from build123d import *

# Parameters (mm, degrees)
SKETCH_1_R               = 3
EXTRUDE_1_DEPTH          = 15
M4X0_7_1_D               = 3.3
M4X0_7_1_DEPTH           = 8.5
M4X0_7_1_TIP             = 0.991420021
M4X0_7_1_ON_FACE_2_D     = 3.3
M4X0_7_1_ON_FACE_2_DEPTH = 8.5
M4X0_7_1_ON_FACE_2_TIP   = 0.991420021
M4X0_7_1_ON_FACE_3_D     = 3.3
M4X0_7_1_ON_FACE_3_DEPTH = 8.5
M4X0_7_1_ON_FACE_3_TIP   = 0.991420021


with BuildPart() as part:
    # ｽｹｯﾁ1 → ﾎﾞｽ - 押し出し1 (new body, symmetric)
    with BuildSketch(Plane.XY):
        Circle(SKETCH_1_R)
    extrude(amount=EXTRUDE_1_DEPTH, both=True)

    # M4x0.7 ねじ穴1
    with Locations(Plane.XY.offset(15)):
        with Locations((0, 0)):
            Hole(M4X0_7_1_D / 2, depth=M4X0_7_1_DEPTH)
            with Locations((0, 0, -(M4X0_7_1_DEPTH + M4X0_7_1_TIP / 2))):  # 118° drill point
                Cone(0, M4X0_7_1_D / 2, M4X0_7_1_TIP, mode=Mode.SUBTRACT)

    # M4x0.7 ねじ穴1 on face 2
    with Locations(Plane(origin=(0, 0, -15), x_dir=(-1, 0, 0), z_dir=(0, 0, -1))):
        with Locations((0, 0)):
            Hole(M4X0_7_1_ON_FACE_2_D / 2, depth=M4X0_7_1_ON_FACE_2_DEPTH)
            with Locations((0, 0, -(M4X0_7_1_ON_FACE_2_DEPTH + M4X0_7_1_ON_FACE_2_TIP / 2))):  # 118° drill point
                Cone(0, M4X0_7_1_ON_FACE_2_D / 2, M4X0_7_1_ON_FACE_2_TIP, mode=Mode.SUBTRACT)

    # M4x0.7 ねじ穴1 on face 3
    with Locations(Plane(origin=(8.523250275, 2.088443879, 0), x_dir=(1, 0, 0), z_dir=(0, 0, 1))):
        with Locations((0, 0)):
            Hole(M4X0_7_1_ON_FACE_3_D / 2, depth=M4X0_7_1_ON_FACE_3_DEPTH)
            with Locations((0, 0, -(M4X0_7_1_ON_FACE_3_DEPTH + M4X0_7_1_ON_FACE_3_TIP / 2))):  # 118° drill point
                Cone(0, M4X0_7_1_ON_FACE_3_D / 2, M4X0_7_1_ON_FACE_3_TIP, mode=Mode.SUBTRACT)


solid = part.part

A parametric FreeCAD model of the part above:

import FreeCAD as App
import Part
import Sketcher

V = App.Vector
Q = App.Units.Quantity

doc = App.newDocument("Part")
params = doc.addObject("Spreadsheet::Sheet", "Params")
for row, (alias, value) in enumerate([
    ("sketch1_diameter", "6 mm"),
    ("pad1_length", "30 mm"),
    ("sketch2_diameter", "3.3 mm"),
    ("hole_diameter", "3.3 mm"),
    ("hole_depth", "8.5 mm"),
    ("sketch3_diameter", "3.3 mm"),
    ("hole2_diameter", "3.3 mm"),
    ("hole2_depth", "8.5 mm"),
    ("sketch4_diameter", "3.3 mm"),
    ("hole3_diameter", "3.3 mm"),
    ("hole3_depth", "8.5 mm"),
], start=1):
    params.set(f"A{row}", alias)
    params.set(f"B{row}", "=" + value)
    params.setAlias(f"B{row}", alias)

body = doc.addObject("PartDesign::Body", "Body")

# Sketch on XY plane
sketch1 = body.newObject("Sketcher::SketchObject", "Sketch")
sketch1.AttachmentSupport = (doc.getObject("XY_Plane"), [""])
sketch1.MapMode = "FlatFace"
sketch1.addGeometry(Part.Circle(V(0, 0, 0), V(0, 0, 1), 3), False)
sketch1.addConstraint([
    Sketcher.Constraint("Coincident", 0, 3, -1, 1),
    Sketcher.Constraint("Diameter", 0, Q("6 mm")),
])
sketch1.setExpression("Constraints[1]", "Params.sketch1_diameter")
pad1 = body.newObject("PartDesign::Pad", "Pad")
pad1.Profile = sketch1
pad1.setExpression("Length", "Params.pad1_length")
pad1.Midplane = True

# Sketch on XY plane
sketch2 = body.newObject("Sketcher::SketchObject", "Sketch001")
sketch2.AttachmentSupport = (doc.getObject("XY_Plane"), [""])
sketch2.MapMode = "FlatFace"
sketch2.AttachmentOffset = App.Placement(V(0, 0, 15), App.Rotation())
sketch2.addGeometry(Part.Circle(V(0, 0, 0), V(0, 0, 1), 1.6), False)
sketch2.addConstraint([
    Sketcher.Constraint("Coincident", 0, 3, -1, 1),
    Sketcher.Constraint("Diameter", 0, Q("3.3 mm")),
])
sketch2.setExpression("Constraints[1]", "Params.sketch2_diameter")
doc.recompute()
hole = body.newObject("PartDesign::Hole", "Hole")
hole.Profile = sketch2
hole.ThreadType = "None"
hole.setExpression("Diameter", "Params.hole_diameter")
hole.DepthType = "Dimension"
hole.setExpression("Depth", "Params.hole_depth")
hole.DrillPoint = "Angled"
hole.DrillPointAngle = 118

# Sketch on XY plane
sketch3 = body.newObject("Sketcher::SketchObject", "Sketch002")
sketch3.AttachmentSupport = (doc.getObject("XY_Plane"), [""])
sketch3.MapMode = "FlatFace"
sketch3.AttachmentOffset = App.Placement(V(0, 0, -15), App.Rotation())
sketch3.addGeometry(Part.Circle(V(0, 0, 0), V(0, 0, 1), 1.6), False)
sketch3.addConstraint([
    Sketcher.Constraint("Coincident", 0, 3, -1, 1),
    Sketcher.Constraint("Diameter", 0, Q("3.3 mm")),
])
sketch3.setExpression("Constraints[1]", "Params.sketch3_diameter")
doc.recompute()
hole2 = body.newObject("PartDesign::Hole", "Hole001")
hole2.Profile = sketch3
hole2.ThreadType = "None"
hole2.setExpression("Diameter", "Params.hole2_diameter")
hole2.DepthType = "Dimension"
hole2.setExpression("Depth", "Params.hole2_depth")
hole2.DrillPoint = "Angled"
hole2.DrillPointAngle = 118
hole2.Reversed = True

# Sketch on XY plane
sketch4 = body.newObject("Sketcher::SketchObject", "Sketch003")
sketch4.AttachmentSupport = (doc.getObject("XY_Plane"), [""])
sketch4.MapMode = "FlatFace"
sketch4.addGeometry(Part.Circle(V(8.5, 2.1, 0), V(0, 0, 1), 1.6), False)
sketch4.addConstraint([
    Sketcher.Constraint("Diameter", 0, Q("3.3 mm")),
    Sketcher.Constraint("DistanceX", -1, 1, 0, 3, Q("8.52325 mm")),
    Sketcher.Constraint("DistanceY", -1, 1, 0, 3, Q("2.088444 mm")),
])
sketch4.setExpression("Constraints[0]", "Params.sketch4_diameter")
doc.recompute()
hole3 = body.newObject("PartDesign::Hole", "Hole002")
hole3.Profile = sketch4
hole3.ThreadType = "None"
hole3.setExpression("Diameter", "Params.hole3_diameter")
hole3.DepthType = "Dimension"
hole3.setExpression("Depth", "Params.hole3_depth")
hole3.DrillPoint = "Angled"
hole3.DrillPointAngle = 118

doc.recompute()
